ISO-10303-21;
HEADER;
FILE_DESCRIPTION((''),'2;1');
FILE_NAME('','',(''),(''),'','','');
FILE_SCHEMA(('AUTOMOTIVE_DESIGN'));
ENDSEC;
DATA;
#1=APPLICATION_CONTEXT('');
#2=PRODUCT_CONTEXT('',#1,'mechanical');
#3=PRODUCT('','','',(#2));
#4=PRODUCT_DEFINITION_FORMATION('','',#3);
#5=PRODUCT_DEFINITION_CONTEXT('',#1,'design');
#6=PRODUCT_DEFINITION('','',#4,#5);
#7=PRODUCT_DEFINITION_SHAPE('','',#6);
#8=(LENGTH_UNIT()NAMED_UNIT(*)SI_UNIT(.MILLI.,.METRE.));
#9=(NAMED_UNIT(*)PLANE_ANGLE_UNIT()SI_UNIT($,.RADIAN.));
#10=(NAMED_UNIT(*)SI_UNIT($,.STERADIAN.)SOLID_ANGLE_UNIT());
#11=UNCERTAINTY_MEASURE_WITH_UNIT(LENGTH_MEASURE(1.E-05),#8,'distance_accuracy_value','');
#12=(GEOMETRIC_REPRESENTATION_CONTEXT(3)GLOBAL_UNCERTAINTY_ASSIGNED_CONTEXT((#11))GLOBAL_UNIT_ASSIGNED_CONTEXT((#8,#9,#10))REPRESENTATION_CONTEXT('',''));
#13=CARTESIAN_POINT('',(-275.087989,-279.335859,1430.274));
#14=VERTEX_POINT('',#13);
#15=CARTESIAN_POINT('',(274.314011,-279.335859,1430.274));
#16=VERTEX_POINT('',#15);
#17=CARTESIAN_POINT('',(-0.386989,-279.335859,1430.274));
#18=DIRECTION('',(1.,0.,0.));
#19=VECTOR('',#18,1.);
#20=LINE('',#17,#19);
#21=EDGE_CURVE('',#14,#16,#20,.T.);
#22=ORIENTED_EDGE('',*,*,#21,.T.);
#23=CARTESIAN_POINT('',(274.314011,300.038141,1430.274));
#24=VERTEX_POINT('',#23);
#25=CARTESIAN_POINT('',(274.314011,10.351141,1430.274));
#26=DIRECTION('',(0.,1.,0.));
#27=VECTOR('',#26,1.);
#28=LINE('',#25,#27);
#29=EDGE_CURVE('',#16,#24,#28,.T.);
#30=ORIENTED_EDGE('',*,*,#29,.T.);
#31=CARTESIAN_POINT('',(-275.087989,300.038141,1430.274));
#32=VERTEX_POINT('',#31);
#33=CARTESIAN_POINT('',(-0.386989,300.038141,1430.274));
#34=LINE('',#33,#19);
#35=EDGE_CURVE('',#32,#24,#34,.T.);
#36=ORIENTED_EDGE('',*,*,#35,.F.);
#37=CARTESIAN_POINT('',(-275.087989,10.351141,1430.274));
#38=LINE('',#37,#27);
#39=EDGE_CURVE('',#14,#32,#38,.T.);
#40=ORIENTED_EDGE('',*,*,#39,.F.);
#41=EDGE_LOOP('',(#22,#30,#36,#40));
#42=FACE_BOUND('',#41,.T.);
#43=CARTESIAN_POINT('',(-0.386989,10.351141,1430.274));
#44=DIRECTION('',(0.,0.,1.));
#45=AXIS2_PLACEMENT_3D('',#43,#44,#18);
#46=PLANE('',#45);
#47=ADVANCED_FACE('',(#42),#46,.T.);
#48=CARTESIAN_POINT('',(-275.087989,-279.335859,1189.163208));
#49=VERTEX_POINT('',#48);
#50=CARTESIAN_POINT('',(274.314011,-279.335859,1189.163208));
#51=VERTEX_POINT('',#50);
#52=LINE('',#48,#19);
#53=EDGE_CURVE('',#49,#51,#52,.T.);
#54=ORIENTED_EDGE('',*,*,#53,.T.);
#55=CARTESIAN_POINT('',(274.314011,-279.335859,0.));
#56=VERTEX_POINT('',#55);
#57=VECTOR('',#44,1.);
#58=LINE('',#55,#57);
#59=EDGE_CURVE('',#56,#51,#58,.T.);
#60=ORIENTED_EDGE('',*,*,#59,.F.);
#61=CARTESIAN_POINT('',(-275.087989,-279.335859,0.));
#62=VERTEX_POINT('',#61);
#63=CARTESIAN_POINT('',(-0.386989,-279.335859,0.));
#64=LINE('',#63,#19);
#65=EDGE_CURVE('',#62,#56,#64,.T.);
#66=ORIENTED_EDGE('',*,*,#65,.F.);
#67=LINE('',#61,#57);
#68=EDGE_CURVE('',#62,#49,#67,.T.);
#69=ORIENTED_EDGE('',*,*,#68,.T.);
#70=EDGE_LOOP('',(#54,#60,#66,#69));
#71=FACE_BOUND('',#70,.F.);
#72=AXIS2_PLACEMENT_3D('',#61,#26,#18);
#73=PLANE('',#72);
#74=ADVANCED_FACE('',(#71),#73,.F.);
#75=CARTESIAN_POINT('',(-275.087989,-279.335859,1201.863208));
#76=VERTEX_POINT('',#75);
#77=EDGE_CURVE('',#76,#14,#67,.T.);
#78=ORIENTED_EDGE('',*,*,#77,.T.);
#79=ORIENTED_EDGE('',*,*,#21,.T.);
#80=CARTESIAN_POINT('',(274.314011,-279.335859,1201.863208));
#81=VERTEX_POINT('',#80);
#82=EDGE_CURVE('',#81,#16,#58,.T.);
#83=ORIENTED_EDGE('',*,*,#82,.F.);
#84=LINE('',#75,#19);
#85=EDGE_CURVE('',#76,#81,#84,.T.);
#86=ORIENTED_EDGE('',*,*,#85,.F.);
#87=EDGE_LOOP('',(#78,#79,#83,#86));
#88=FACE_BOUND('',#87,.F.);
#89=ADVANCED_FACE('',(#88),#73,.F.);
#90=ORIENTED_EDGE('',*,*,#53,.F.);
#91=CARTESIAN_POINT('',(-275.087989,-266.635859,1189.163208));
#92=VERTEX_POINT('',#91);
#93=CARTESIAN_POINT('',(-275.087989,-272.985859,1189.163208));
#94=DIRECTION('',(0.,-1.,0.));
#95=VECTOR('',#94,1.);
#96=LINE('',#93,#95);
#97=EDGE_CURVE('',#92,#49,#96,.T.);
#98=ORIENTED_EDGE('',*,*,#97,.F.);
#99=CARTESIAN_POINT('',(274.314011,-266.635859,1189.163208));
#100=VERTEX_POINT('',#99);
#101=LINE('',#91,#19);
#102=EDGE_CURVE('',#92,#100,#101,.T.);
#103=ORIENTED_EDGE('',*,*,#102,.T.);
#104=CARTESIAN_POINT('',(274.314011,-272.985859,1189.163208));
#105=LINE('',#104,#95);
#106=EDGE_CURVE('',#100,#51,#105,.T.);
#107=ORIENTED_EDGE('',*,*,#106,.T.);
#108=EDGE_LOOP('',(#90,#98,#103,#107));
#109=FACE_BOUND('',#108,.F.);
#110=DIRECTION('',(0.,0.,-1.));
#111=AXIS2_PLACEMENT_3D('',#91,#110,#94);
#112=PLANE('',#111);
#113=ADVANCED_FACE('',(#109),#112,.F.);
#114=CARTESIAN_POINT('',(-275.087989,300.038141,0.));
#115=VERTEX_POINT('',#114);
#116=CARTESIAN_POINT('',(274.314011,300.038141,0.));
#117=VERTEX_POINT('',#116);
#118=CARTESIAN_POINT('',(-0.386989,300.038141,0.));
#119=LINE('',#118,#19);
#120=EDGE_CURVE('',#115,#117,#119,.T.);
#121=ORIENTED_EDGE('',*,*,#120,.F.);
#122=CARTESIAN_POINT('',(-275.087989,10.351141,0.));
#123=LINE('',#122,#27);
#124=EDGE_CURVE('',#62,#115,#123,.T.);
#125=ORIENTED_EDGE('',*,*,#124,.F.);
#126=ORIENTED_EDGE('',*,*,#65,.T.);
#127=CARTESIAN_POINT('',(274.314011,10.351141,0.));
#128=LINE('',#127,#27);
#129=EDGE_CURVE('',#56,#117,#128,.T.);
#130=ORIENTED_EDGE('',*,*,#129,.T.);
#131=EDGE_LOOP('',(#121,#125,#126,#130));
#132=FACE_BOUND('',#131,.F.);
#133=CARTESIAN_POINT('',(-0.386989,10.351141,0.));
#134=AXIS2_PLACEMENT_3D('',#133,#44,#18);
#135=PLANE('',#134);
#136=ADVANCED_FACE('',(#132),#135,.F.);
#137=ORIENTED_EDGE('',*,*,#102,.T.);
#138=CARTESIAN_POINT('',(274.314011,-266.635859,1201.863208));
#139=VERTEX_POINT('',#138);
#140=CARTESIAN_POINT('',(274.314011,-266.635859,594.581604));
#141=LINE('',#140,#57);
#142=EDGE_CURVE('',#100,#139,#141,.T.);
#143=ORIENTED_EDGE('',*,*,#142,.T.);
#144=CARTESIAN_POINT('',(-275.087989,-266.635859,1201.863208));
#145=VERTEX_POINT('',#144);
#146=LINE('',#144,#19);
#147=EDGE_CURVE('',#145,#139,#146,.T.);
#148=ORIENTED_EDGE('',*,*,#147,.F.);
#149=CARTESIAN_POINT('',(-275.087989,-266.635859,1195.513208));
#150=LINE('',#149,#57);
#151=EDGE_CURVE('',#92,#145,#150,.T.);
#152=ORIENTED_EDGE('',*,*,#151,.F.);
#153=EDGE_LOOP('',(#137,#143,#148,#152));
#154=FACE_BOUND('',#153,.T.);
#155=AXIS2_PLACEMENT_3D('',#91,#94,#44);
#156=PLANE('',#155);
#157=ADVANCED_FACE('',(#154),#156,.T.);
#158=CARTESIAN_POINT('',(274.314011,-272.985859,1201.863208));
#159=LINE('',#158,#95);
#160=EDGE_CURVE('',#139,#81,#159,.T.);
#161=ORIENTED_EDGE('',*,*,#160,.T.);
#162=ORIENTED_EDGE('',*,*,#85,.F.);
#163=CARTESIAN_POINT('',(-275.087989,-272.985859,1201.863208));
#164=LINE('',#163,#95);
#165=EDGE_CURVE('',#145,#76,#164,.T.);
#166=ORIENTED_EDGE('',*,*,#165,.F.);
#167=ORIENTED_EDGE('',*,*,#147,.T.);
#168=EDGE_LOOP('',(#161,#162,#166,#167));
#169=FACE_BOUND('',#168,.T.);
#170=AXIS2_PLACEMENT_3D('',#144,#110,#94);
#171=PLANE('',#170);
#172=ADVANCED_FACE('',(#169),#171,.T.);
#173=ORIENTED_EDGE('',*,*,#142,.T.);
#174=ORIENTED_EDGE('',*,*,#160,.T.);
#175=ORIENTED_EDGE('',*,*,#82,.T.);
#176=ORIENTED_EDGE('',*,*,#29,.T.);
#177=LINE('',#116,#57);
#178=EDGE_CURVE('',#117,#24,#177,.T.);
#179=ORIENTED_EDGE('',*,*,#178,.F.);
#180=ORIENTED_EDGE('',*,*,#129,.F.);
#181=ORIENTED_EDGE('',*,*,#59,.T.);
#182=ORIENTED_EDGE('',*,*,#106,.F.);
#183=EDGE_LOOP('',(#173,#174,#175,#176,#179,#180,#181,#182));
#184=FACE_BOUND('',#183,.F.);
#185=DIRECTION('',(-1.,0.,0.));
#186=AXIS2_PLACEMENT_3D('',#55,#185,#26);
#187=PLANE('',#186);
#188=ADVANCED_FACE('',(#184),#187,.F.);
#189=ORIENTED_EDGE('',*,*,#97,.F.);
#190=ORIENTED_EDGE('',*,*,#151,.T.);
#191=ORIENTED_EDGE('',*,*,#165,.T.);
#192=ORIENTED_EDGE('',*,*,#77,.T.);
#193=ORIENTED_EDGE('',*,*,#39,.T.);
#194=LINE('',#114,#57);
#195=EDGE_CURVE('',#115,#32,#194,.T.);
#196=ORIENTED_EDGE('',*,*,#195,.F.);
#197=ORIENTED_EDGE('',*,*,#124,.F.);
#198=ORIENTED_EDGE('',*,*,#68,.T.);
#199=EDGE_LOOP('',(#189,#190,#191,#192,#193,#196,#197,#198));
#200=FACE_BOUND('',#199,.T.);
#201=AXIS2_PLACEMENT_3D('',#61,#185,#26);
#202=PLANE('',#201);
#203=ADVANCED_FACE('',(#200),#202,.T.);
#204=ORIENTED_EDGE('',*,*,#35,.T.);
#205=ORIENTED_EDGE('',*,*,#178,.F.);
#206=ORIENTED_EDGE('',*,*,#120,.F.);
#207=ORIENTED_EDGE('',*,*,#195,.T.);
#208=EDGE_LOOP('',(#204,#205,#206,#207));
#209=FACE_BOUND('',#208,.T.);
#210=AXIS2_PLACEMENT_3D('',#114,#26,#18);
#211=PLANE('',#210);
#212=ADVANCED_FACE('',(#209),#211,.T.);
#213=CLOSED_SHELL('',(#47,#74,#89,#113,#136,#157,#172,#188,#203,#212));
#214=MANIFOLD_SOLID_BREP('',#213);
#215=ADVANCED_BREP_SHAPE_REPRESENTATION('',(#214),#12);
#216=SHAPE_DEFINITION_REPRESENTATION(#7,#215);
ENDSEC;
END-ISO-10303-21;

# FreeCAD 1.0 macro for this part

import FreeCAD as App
import Part
import Sketcher
Q = App.Units.Quantity

doc = App.newDocument("Part")
body = doc.addObject("PartDesign::Body", "Body")

# Sketch on XY plane
sketch1 = body.newObject("Sketcher::SketchObject", "Sketch")
sketch1.AttachmentSupport = (doc.getObject("XY_Plane"), [""])
sketch1.MapMode = "FlatFace"
sketch1.addGeometry([
    Part.LineSegment(App.Vector(-275, 300, 0), App.Vector(-275, -279, 0)),
    Part.LineSegment(App.Vector(-275, -279, 0), App.Vector(274, -279, 0)),
    Part.LineSegment(App.Vector(274, -279, 0), App.Vector(274, 300, 0)),
    Part.LineSegment(App.Vector(274, 300, 0), App.Vector(-275, 300, 0)),
], False)
sketch1.addConstraint([
    Sketcher.Constraint("Coincident", 0, 2, 1, 1),
    Sketcher.Constraint("Coincident", 1, 2, 2, 1),
    Sketcher.Constraint("Coincident", 2, 2, 3, 1),
    Sketcher.Constraint("Coincident", 3, 2, 0, 1),
    Sketcher.Constraint("Vertical", 0),
    Sketcher.Constraint("Horizontal", 1),
    Sketcher.Constraint("Vertical", 2),
    Sketcher.Constraint("Horizontal", 3),
    Sketcher.Constraint("DistanceX", 1, 1, 1, 2, Q("21.63 in")),
    Sketcher.Constraint("DistanceY", 0, 2, 0, 1, Q("22.81 in")),
    Sketcher.Constraint("DistanceX", 0, 2, -1, 1, 275.087989),
    Sketcher.Constraint("DistanceY", 0, 2, -1, 1, 279.335859),
])
pad1 = body.newObject("PartDesign::Pad", "Pad")
pad1.Profile = sketch1
pad1.Length = Q("56.31 in")

# Sketch on YZ plane
sketch2 = body.newObject("Sketcher::SketchObject", "Sketch001")
sketch2.AttachmentSupport = (doc.getObject("YZ_Plane"), [""])
sketch2.MapMode = "FlatFace"
sketch2.AttachmentOffset = App.Placement(App.Vector(0, 0, -275.087989), App.Rotation())
sketch2.addGeometry([
    Part.LineSegment(App.Vector(-267, 1202, 0), App.Vector(-267, 1189, 0)),
    Part.LineSegment(App.Vector(-267, 1189, 0), App.Vector(-279, 1189, 0)),
    Part.LineSegment(App.Vector(-279, 1189, 0), App.Vector(-279, 1202, 0)),
    Part.LineSegment(App.Vector(-279, 1202, 0), App.Vector(-267, 1202, 0)),
], False)
sketch2.addConstraint([
    Sketcher.Constraint("Coincident", 0, 2, 1, 1),
    Sketcher.Constraint("Coincident", 1, 2, 2, 1),
    Sketcher.Constraint("Coincident", 2, 2, 3, 1),
    Sketcher.Constraint("Coincident", 3, 2, 0, 1),
    Sketcher.Constraint("Vertical", 0),
    Sketcher.Constraint("Horizontal", 1),
    Sketcher.Constraint("Vertical", 2),
    Sketcher.Constraint("Horizontal", 3),
    Sketcher.Constraint("Equal", 3, 0),
    Sketcher.Constraint("DistanceX", 1, 2, 1, 1, Q("0.5 in")),
    Sketcher.Constraint("DistanceX", 0, 2, -1, 1, 266.635859),
    Sketcher.Constraint("DistanceY", -1, 1, 0, 2, 1189.163208),
])
pocket1 = body.newObject("PartDesign::Pocket", "Pocket")
pocket1.Profile = sketch2
pocket1.Type = "ThroughAll"
pocket1.Reversed = True

doc.recompute()
